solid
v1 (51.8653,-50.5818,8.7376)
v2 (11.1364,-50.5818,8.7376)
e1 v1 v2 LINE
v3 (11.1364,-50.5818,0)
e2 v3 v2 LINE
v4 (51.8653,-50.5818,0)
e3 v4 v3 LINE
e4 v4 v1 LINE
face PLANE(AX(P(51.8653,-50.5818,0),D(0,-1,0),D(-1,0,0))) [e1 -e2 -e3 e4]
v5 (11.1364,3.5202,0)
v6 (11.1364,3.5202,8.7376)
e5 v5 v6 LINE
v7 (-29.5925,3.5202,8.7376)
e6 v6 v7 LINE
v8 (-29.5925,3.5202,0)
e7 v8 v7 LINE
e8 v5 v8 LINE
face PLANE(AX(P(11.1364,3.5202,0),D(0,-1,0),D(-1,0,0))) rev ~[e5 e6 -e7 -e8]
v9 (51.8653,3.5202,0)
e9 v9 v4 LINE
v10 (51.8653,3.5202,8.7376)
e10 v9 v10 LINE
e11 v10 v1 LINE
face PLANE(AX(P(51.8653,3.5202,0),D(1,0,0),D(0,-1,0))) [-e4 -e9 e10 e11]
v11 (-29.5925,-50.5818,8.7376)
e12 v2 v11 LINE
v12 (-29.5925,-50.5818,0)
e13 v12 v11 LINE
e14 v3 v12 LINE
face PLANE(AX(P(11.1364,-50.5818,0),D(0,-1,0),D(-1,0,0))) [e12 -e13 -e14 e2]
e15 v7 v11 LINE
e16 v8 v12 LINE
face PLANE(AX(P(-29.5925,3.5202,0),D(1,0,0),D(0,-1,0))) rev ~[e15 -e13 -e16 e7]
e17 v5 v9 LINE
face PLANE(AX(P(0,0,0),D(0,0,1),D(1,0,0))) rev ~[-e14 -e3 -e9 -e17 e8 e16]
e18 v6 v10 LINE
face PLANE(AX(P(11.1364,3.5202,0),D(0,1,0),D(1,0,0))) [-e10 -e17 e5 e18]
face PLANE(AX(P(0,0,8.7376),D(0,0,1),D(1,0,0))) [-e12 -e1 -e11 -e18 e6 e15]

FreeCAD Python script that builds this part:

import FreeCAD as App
import Part
import Sketcher
from FreeCAD import Vector
Q = App.Units.Quantity

doc = App.newDocument("Part")
params = doc.addObject("Spreadsheet::Sheet", "Params")
for row, (alias, value) in enumerate([
    ("sketch1_height", "2.13 in"),
    ("sketch1_width", "3.207 in"),
    ("pad1_length", "0.344 in"),
], start=1):
    params.set(f"A{row}", alias)
    params.set(f"B{row}", "=" + value)
    params.setAlias(f"B{row}", alias)

body = doc.addObject("PartDesign::Body", "Body")

sketch1 = doc.addObject("Sketcher::SketchObject", "Sketch")
body.addObject(sketch1)
sketch1.AttachmentSupport = (doc.XY_Plane, [""])
sketch1.MapMode = "FlatFace"
sketch1.addGeometry([
    Part.LineSegment(Vector(52, 4, 0), Vector(-30, 4, 0)),
    Part.LineSegment(Vector(-30, 4, 0), Vector(-30, -51, 0)),
    Part.LineSegment(Vector(-30, -51, 0), Vector(52, -51, 0)),
    Part.LineSegment(Vector(52, -51, 0), Vector(52, 4, 0)),
], False)
sketch1.addConstraint([
    Sketcher.Constraint("Coincident", 0, 2, 1, 1),
    Sketcher.Constraint("Coincident", 1, 2, 2, 1),
    Sketcher.Constraint("Coincident", 2, 2, 3, 1),
    Sketcher.Constraint("Coincident", 3, 2, 0, 1),
    Sketcher.Constraint("Horizontal", 0),
    Sketcher.Constraint("Vertical", 1),
    Sketcher.Constraint("Horizontal", 2),
    Sketcher.Constraint("Vertical", 3),
    Sketcher.Constraint("DistanceY", 1, 2, 1, 1, Q("2.13 in")),
    Sketcher.Constraint("DistanceX", 0, 2, 0, 1, Q("3.207 in")),
    Sketcher.Constraint("DistanceY", -1, 1, 0, 2, Q("0.1386 in")),
    Sketcher.Constraint("DistanceX", 0, 2, -1, 1, 29.5925),
])
sketch1.setExpression("Constraints[8]", "Params.sketch1_height")
sketch1.setExpression("Constraints[9]", "Params.sketch1_width")
pad1 = doc.addObject("PartDesign::Pad", "Pad")
body.addObject(pad1)
pad1.Profile = sketch1
pad1.setExpression("Length", "Params.pad1_length")

doc.recompute()
